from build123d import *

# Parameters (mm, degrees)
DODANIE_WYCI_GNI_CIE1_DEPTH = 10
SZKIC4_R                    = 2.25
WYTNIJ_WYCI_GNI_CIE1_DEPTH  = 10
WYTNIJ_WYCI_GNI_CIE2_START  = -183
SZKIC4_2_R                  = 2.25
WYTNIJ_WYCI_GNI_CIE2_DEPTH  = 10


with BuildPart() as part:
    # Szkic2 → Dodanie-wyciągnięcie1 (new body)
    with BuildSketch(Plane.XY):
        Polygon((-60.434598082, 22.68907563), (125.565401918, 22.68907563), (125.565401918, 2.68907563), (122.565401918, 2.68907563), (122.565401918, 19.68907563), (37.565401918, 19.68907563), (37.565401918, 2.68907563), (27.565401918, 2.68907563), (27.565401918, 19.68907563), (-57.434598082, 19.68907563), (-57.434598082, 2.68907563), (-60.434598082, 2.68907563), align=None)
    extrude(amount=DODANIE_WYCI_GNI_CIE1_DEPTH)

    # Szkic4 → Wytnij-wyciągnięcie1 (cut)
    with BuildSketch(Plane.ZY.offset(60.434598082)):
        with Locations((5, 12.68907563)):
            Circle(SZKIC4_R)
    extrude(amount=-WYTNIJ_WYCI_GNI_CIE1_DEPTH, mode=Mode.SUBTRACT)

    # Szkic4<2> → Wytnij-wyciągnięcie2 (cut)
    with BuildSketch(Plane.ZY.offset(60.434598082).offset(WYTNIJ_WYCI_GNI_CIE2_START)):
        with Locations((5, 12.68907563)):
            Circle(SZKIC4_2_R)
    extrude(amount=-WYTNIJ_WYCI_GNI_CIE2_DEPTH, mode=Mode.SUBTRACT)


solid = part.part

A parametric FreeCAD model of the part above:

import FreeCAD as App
import Part
import Sketcher
from FreeCAD import Vector
Q = App.Units.Quantity


def add_polygon(sketch, points):
    """Adds a closed chain of lines whose ends are joined by coincident constraints."""
    first, n = sketch.GeometryCount, len(points)
    for a, b in zip(points, points[1:] + points[:1]):
        sketch.addGeometry(Part.LineSegment(App.Vector(*a, 0), App.Vector(*b, 0)), False)
    for i in range(n):
        sketch.addConstraint(Sketcher.Constraint("Coincident", first + i, 2, first + (i + 1) % n, 1))

doc = App.newDocument("Part")
params = doc.addObject("Spreadsheet::Sheet", "Params")
for row, (alias, value) in enumerate([
    ("sketch1_width", "186 mm"),
    ("sketch1_width2", "3 mm"),
    ("sketch1_width3", "85 mm"),
    ("sketch1_height", "20 mm"),
    ("sketch1_height2", "17 mm"),
    ("pad1_length", "10 mm"),
    ("sketch2_diameter", "4.5 mm"),
    ("pocket1_length", "10 mm"),
    ("sketch3_diameter", "4.5 mm"),
    ("pocket2_length", "10 mm"),
], start=1):
    params.set(f"A{row}", alias)
    params.set(f"B{row}", "=" + value)
    params.setAlias(f"B{row}", alias)

body = doc.addObject("PartDesign::Body", "Body")

# Sketch on XY plane
sketch1 = doc.addObject("Sketcher::SketchObject", "Sketch")
body.addObject(sketch1)
sketch1.AttachmentSupport = (doc.XY_Plane, [""])
sketch1.MapMode = "FlatFace"
add_polygon(sketch1, [(125.6, 22.7), (-60.4, 22.7), (-60.4, 2.7), (-57.4, 2.7), (-57.4, 19.7), (27.6, 19.7), (27.6, 2.7), (37.6, 2.7), (37.6, 19.7), (122.6, 19.7), (122.6, 2.7), (125.6, 2.7)])  # lines 0-11
sketch1.addConstraint([
    Sketcher.Constraint("Horizontal", 0),
    Sketcher.Constraint("Vertical", 1),
    Sketcher.Constraint("Horizontal", 2),
    Sketcher.Constraint("Vertical", 3),
    Sketcher.Constraint("Horizontal", 4),
    Sketcher.Constraint("Vertical", 5),
    Sketcher.Constraint("Horizontal", 6),
    Sketcher.Constraint("Vertical", 7),
    Sketcher.Constraint("Horizontal", 8),
    Sketcher.Constraint("Vertical", 9),
    Sketcher.Constraint("Horizontal", 10),
    Sketcher.Constraint("Vertical", 11),
    Sketcher.Constraint("Horizontal", 2, 2, 5, 2),
    Sketcher.Constraint("Horizontal", 4, 2, 7, 2),
    Sketcher.Constraint("Horizontal", 6, 2, 9, 2),
    Sketcher.Constraint("Equal", 4, 8),
    Sketcher.Constraint("Equal", 2, 10),
    Sketcher.Constraint("DistanceX", 0, 2, 0, 1, Q("186 mm")),
    Sketcher.Constraint("DistanceX", 2, 1, 2, 2, Q("3 mm")),
    Sketcher.Constraint("DistanceX", 4, 1, 4, 2, Q("85 mm")),
    Sketcher.Constraint("DistanceY", 1, 2, 1, 1, Q("20 mm")),
    Sketcher.Constraint("DistanceY", 3, 1, 3, 2, Q("17 mm")),
    Sketcher.Constraint("DistanceX", 0, 2, -1, 1, Q("60.434598 mm")),
    Sketcher.Constraint("DistanceY", -1, 1, 0, 2, Q("22.689076 mm")),
])
sketch1.setExpression("Constraints[29]", "Params.sketch1_width")
sketch1.setExpression("Constraints[30]", "Params.sketch1_width2")
sketch1.setExpression("Constraints[31]", "Params.sketch1_width3")
sketch1.setExpression("Constraints[32]", "Params.sketch1_height")
sketch1.setExpression("Constraints[33]", "Params.sketch1_height2")
pad1 = doc.addObject("PartDesign::Pad", "Pad")
body.addObject(pad1)
pad1.Profile = sketch1
pad1.setExpression("Length", "Params.pad1_length")

# Sketch on YZ plane
sketch2 = doc.addObject("Sketcher::SketchObject", "Sketch001")
body.addObject(sketch2)
sketch2.AttachmentSupport = (doc.YZ_Plane, [""])
sketch2.MapMode = "FlatFace"
sketch2.AttachmentOffset = App.Placement(Vector(0, 0, -60.434598), App.Rotation())
sketch2.addGeometry(Part.Circle(Vector(12.7, 5, 0), Vector(0, 0, 1), 2.2), False)
sketch2.addConstraint([
    Sketcher.Constraint("Diameter", 0, Q("4.5 mm")),
    Sketcher.Constraint("DistanceY", -1, 1, 0, 3, Q("5 mm")),
    Sketcher.Constraint("DistanceX", -1, 1, 0, 3, Q("12.689076 mm")),
])
sketch2.setExpression("Constraints[0]", "Params.sketch2_diameter")
pocket1 = doc.addObject("PartDesign::Pocket", "Pocket")
body.addObject(pocket1)
pocket1.Profile = sketch2
pocket1.setExpression("Length", "Params.pocket1_length")
pocket1.Reversed = True

# Sketch on YZ plane
sketch3 = doc.addObject("Sketcher::SketchObject", "Sketch002")
body.addObject(sketch3)
sketch3.AttachmentSupport = (doc.YZ_Plane, [""])
sketch3.MapMode = "FlatFace"
sketch3.AttachmentOffset = App.Placement(Vector(0, 0, 122.565402), App.Rotation())
sketch3.addGeometry(Part.Circle(Vector(12.7, 5, 0), Vector(0, 0, 1), 2.2), False)
sketch3.addConstraint([
    Sketcher.Constraint("Diameter", 0, Q("4.5 mm")),
    Sketcher.Constraint("DistanceY", -1, 1, 0, 3, Q("5 mm")),
    Sketcher.Constraint("DistanceX", -1, 1, 0, 3, Q("12.689076 mm")),
])
sketch3.setExpression("Constraints[0]", "Params.sketch3_diameter")
pocket2 = doc.addObject("PartDesign::Pocket", "Pocket001")
body.addObject(pocket2)
pocket2.Profile = sketch3
pocket2.setExpression("Length", "Params.pocket2_length")
pocket2.Reversed = True

doc.recompute()
